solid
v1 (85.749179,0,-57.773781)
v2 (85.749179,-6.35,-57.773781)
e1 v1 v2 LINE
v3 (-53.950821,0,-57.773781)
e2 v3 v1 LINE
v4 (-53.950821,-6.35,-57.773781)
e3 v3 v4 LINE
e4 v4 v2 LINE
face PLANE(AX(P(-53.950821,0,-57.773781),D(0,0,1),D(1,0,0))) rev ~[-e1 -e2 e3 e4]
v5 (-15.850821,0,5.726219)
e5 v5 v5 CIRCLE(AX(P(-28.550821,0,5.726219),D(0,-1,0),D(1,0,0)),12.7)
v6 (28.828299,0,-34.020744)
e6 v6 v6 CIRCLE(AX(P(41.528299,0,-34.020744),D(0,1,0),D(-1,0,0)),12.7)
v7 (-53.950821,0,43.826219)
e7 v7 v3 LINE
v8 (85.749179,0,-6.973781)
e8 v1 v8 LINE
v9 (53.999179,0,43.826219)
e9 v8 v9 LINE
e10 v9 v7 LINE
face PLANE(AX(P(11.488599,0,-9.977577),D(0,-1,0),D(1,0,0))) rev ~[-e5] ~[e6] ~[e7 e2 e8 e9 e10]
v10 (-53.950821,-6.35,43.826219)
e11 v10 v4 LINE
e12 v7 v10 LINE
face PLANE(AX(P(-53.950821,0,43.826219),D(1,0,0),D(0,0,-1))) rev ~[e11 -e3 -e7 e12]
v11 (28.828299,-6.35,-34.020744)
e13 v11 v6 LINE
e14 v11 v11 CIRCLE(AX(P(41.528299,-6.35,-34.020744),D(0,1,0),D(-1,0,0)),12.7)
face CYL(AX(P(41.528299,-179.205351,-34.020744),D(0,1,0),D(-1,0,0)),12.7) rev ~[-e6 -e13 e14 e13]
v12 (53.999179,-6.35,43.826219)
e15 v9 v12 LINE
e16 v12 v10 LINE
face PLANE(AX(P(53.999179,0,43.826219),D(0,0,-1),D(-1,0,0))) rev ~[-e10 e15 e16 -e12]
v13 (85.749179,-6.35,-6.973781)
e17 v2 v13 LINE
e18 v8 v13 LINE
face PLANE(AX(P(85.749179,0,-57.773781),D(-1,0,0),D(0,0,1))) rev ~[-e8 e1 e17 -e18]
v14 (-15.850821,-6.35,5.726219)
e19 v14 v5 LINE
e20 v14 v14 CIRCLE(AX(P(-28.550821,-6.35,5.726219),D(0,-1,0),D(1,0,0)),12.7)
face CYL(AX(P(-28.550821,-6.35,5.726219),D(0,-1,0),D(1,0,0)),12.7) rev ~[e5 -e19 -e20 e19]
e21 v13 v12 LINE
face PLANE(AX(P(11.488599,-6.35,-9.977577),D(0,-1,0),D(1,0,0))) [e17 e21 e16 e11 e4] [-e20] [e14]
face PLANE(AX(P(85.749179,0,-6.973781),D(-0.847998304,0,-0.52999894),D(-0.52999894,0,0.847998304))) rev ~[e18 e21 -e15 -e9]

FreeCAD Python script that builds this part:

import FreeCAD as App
import Part
import Sketcher
from FreeCAD import Vector
Q = App.Units.Quantity

doc = App.newDocument("Part")
body = doc.addObject("PartDesign::Body", "Body")

# Sketch on XZ plane
sketch1 = body.newObject("Sketcher::SketchObject", "Sketch")
sketch1.AttachmentSupport = (doc.getObject("XZ_Plane"), [""])
sketch1.MapMode = "FlatFace"
sketch1.addGeometry([
    Part.LineSegment(Vector(54, 44, 0), Vector(-54, 44, 0)),  # 0
    Part.LineSegment(Vector(-54, 44, 0), Vector(-54, -58, 0)),  # 1
    Part.LineSegment(Vector(-54, -58, 0), Vector(86, -58, 0)),  # 2
    Part.LineSegment(Vector(86, -58, 0), Vector(86, -7, 0)),  # 3
    Part.LineSegment(Vector(86, -7, 0), Vector(54, 44, 0)),  # 4
], False)
sketch1.addConstraint([
    Sketcher.Constraint("Coincident", 0, 2, 1, 1),
    Sketcher.Constraint("Coincident", 1, 2, 2, 1),
    Sketcher.Constraint("Coincident", 2, 2, 3, 1),
    Sketcher.Constraint("Coincident", 3, 2, 4, 1),
    Sketcher.Constraint("Coincident", 4, 2, 0, 1),
    Sketcher.Constraint("Horizontal", 0),
    Sketcher.Constraint("Vertical", 1),
    Sketcher.Constraint("Horizontal", 2),
    Sketcher.Constraint("Vertical", 3),
    Sketcher.Constraint("DistanceY", 1, 2, 1, 1, Q("4 in")),
    Sketcher.Constraint("DistanceY", 3, 1, 3, 2, Q("2 in")),
    Sketcher.Constraint("DistanceX", 2, 1, 2, 2, Q("5.5 in")),
    Sketcher.Constraint("DistanceX", 0, 2, 0, 1, Q("4.25 in")),
    Sketcher.Constraint("DistanceX", 0, 2, -1, 1, Q("53.950821 mm")),
    Sketcher.Constraint("DistanceY", -1, 1, 0, 2, Q("43.826219 mm")),
])
pad1 = body.newObject("PartDesign::Pad", "Pad")
pad1.Profile = sketch1
pad1.Length = Q("0.25 in")

# Sketch on XZ plane
sketch2 = body.newObject("Sketcher::SketchObject", "Sketch001")
sketch2.AttachmentSupport = (doc.getObject("XZ_Plane"), [""])
sketch2.MapMode = "FlatFace"
sketch2.AttachmentOffset = App.Placement(Vector(0, 0, 0.25 * 25.4), App.Rotation())
sketch2.addGeometry(Part.Circle(Vector(-29, 6, 0), Vector(0, 0, 1), 13), False)
sketch2.addConstraint([
    Sketcher.Constraint("Diameter", 0, Q("1 in")),
    Sketcher.Constraint("DistanceX", 0, 3, -1, 1, Q("28.550821 mm")),
    Sketcher.Constraint("DistanceY", -1, 1, 0, 3, Q("5.726219 mm")),
])
pocket1 = body.newObject("PartDesign::Pocket", "Pocket")
pocket1.Profile = sketch2
pocket1.Type = "ThroughAll"

# Sketch on XZ plane
sketch3 = body.newObject("Sketcher::SketchObject", "Sketch002")
sketch3.AttachmentSupport = (doc.getObject("XZ_Plane"), [""])
sketch3.MapMode = "FlatFace"
sketch3.AttachmentOffset = App.Placement(Vector(0, 0, 0.25 * 25.4), App.Rotation())
sketch3.addGeometry(Part.Circle(Vector(42, -34, 0), Vector(0, 0, 1), 13), False)
sketch3.addConstraint([
    Sketcher.Constraint("Diameter", 0, Q("1 in")),
    Sketcher.Constraint("DistanceX", -1, 1, 0, 3, Q("41.528299 mm")),
    Sketcher.Constraint("DistanceY", 0, 3, -1, 1, Q("34.020744 mm")),
])
doc.recompute()
hole = body.newObject("PartDesign::Hole", "Hole")
hole.Profile = sketch3
hole.ThreadType = "None"
hole.Diameter = Q("1 in")
hole.DepthType = "ThroughAll"

doc.recompute()
